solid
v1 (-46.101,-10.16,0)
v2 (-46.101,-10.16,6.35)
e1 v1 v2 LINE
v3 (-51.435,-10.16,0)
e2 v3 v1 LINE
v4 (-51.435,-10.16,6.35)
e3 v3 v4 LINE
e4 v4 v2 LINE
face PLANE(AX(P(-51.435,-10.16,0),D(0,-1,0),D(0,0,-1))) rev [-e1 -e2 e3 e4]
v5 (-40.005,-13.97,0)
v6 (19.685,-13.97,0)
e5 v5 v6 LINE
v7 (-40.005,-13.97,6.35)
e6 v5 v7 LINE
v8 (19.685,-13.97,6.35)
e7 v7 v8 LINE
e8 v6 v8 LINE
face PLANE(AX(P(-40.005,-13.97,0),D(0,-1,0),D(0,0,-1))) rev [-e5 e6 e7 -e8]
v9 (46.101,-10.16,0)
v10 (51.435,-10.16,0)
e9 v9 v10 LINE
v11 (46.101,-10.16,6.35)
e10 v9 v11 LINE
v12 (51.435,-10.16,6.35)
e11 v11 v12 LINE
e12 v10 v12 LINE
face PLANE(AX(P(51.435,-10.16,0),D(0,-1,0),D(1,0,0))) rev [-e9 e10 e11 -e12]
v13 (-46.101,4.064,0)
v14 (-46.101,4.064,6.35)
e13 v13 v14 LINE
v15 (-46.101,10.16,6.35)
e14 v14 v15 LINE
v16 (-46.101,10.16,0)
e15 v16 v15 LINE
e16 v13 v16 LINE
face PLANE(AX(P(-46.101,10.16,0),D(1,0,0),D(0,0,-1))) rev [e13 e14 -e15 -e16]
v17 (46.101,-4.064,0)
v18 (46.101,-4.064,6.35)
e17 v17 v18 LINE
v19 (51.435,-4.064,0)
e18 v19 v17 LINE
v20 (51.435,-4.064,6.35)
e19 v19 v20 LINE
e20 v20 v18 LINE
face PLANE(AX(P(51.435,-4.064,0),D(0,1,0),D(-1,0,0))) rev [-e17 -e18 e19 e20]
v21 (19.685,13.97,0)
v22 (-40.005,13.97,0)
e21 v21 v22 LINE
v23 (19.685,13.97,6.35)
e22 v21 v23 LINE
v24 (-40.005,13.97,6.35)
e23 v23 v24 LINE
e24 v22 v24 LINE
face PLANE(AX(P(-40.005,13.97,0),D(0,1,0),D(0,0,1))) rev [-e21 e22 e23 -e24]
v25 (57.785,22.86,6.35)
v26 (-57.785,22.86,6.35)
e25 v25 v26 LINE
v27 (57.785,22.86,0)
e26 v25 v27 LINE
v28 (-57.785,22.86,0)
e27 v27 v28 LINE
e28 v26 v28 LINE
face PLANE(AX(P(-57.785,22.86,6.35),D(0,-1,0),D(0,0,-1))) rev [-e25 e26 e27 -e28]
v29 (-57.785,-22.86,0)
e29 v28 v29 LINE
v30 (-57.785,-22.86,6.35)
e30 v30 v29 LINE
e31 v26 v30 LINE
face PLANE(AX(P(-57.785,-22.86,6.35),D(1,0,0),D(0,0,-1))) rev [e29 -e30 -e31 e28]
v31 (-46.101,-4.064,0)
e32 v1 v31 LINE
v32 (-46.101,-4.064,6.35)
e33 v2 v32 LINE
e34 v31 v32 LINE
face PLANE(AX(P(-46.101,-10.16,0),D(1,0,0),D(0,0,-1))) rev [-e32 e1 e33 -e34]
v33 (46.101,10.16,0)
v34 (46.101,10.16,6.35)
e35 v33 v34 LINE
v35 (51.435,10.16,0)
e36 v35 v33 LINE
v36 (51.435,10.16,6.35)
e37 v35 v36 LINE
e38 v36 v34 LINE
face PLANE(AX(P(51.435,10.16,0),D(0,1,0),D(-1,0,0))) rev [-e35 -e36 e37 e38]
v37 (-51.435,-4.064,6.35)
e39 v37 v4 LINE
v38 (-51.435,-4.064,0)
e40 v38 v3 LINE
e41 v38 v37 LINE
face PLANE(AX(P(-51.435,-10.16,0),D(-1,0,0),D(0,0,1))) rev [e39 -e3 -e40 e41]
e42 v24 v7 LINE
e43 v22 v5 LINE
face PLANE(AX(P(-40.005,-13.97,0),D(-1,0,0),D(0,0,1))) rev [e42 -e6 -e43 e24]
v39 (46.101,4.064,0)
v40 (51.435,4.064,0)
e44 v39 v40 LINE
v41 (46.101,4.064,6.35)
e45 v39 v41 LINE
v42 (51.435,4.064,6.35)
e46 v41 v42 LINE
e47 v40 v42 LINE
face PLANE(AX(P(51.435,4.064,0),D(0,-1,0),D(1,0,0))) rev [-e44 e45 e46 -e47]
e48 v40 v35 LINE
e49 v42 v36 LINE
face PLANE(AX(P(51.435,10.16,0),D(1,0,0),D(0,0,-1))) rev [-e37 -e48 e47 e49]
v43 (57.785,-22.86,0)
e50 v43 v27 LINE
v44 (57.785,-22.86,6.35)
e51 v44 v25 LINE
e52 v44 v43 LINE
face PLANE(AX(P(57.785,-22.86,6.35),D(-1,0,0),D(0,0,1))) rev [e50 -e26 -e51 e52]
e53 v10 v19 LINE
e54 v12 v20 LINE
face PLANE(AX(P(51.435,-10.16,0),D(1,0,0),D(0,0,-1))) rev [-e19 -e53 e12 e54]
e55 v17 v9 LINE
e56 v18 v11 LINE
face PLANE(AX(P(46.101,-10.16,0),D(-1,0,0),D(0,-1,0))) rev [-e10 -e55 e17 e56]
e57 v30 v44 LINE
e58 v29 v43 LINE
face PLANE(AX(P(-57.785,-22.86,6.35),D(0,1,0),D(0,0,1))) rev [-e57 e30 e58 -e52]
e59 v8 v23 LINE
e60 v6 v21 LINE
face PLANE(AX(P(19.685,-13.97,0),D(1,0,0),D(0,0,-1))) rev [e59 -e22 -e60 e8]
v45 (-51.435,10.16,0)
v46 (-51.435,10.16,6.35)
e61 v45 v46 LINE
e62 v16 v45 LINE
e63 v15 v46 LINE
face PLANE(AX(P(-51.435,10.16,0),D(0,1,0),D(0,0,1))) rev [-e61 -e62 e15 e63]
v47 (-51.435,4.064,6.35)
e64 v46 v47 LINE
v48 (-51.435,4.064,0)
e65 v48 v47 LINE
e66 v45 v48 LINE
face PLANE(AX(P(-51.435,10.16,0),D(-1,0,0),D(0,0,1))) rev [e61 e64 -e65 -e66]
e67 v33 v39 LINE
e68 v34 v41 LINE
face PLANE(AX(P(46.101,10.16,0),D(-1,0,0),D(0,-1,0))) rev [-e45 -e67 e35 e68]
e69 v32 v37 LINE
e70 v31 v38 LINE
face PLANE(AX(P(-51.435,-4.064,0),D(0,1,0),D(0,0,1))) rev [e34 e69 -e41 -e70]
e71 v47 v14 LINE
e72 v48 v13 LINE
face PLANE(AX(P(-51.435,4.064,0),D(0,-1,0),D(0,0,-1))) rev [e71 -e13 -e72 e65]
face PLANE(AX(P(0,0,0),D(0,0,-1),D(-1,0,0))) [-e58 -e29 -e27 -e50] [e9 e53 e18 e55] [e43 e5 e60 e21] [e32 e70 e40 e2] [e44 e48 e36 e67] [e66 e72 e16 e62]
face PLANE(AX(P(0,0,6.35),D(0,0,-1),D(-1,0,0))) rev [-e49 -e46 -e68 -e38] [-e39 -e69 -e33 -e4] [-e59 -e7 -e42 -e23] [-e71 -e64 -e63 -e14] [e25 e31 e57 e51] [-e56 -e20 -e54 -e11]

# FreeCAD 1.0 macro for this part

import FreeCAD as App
import Part
import Sketcher
from FreeCAD import Vector
Q = App.Units.Quantity

doc = App.newDocument("Part")
params = doc.addObject("Spreadsheet::Sheet", "Params")
for row, (alias, value) in enumerate([
    ("sketch1_height", "1.8 in"),
    ("sketch1_width", "4.55 in"),
    ("pad1_length", "0.25 in"),
    ("sketch2_height", "1.1 in"),
    ("sketch2_width", "2.35 in"),
    ("sketch3_width", "0.21 in"),
    ("sketch3_height", "0.24 in"),
], start=1):
    params.set(f"A{row}", alias)
    params.set(f"B{row}", "=" + value)
    params.setAlias(f"B{row}", alias)

body = doc.addObject("PartDesign::Body", "Body")

# Sketch on XY plane
sketch1 = doc.addObject("Sketcher::SketchObject", "Sketch")
body.addObject(sketch1)
sketch1.AttachmentSupport = (doc.XY_Plane, [""])
sketch1.MapMode = "FlatFace"
sketch1.addGeometry([
    Part.LineSegment(Vector(-58, 23, 0), Vector(-58, -23, 0)),
    Part.LineSegment(Vector(-58, -23, 0), Vector(58, -23, 0)),
    Part.LineSegment(Vector(58, -23, 0), Vector(58, 23, 0)),
    Part.LineSegment(Vector(58, 23, 0), Vector(-58, 23, 0)),
], False)
sketch1.addConstraint([
    Sketcher.Constraint("Coincident", 0, 2, 1, 1),
    Sketcher.Constraint("Coincident", 1, 2, 2, 1),
    Sketcher.Constraint("Coincident", 2, 2, 3, 1),
    Sketcher.Constraint("Coincident", 3, 2, 0, 1),
    Sketcher.Constraint("Vertical", 0),
    Sketcher.Constraint("Horizontal", 1),
    Sketcher.Constraint("Vertical", 2),
    Sketcher.Constraint("Horizontal", 3),
    Sketcher.Constraint("Symmetric", 0, 2, 2, 2, -1, 1),
    Sketcher.Constraint("DistanceY", 0, 2, 0, 1, Q("1.8 in")),
    Sketcher.Constraint("DistanceX", 1, 1, 1, 2, Q("4.55 in")),
])
sketch1.setExpression("Constraints[9]", "Params.sketch1_height")
sketch1.setExpression("Constraints[10]", "Params.sketch1_width")
pad1 = doc.addObject("PartDesign::Pad", "Pad")
body.addObject(pad1)
pad1.Profile = sketch1
pad1.setExpression("Length", "Params.pad1_length")

# Sketch on XY plane
sketch2 = doc.addObject("Sketcher::SketchObject", "Sketch001")
body.addObject(sketch2)
sketch2.AttachmentSupport = (doc.XY_Plane, [""])
sketch2.MapMode = "FlatFace"
sketch2.AttachmentOffset = App.Placement(Vector(0, 0, 0.25 * 25.4), App.Rotation())
sketch2.addGeometry([
    Part.LineSegment(Vector(-40, 14, 0), Vector(-40, -14, 0)),
    Part.LineSegment(Vector(-40, -14, 0), Vector(20, -14, 0)),
    Part.LineSegment(Vector(20, -14, 0), Vector(20, 14, 0)),
    Part.LineSegment(Vector(20, 14, 0), Vector(-40, 14, 0)),
], False)
sketch2.addConstraint([
    Sketcher.Constraint("Coincident", 0, 2, 1, 1),
    Sketcher.Constraint("Coincident", 1, 2, 2, 1),
    Sketcher.Constraint("Coincident", 2, 2, 3, 1),
    Sketcher.Constraint("Coincident", 3, 2, 0, 1),
    Sketcher.Constraint("Vertical", 0),
    Sketcher.Constraint("Horizontal", 1),
    Sketcher.Constraint("Vertical", 2),
    Sketcher.Constraint("Horizontal", 3),
    Sketcher.Constraint("DistanceY", 0, 2, 0, 1, Q("1.1 in")),
    Sketcher.Constraint("DistanceX", 1, 1, 1, 2, Q("2.35 in")),
    Sketcher.Constraint("DistanceY", 0, 2, -1, 1, Q("0.55 in")),
    Sketcher.Constraint("DistanceX", 0, 2, -1, 1, Q("1.575 in")),
])
sketch2.setExpression("Constraints[8]", "Params.sketch2_height")
sketch2.setExpression("Constraints[9]", "Params.sketch2_width")
pocket1 = doc.addObject("PartDesign::Pocket", "Pocket")
body.addObject(pocket1)
pocket1.Profile = sketch2
pocket1.Type = "ThroughAll"

# Sketch on XY plane
sketch3 = doc.addObject("Sketcher::SketchObject", "Sketch002")
body.addObject(sketch3)
sketch3.AttachmentSupport = (doc.XY_Plane, [""])
sketch3.MapMode = "FlatFace"
sketch3.AttachmentOffset = App.Placement(Vector(0, 0, 0.25 * 25.4), App.Rotation())
sketch3.addGeometry([
    Part.LineSegment(Vector(-51, 10, 0), Vector(-51, 4, 0)),  # 0
    Part.LineSegment(Vector(-51, 4, 0), Vector(-46, 4, 0)),  # 1
    Part.LineSegment(Vector(-46, 4, 0), Vector(-46, 10, 0)),  # 2
    Part.LineSegment(Vector(-46, 10, 0), Vector(-51, 10, 0)),  # 3
    Part.LineSegment(Vector(-51, -4, 0), Vector(-51, -10, 0)),  # 4
    Part.LineSegment(Vector(-51, -10, 0), Vector(-46, -10, 0)),  # 5
    Part.LineSegment(Vector(-46, -10, 0), Vector(-46, -4, 0)),  # 6
    Part.LineSegment(Vector(-46, -4, 0), Vector(-51, -4, 0)),  # 7
    Part.LineSegment(Vector(46, -4, 0), Vector(46, -10, 0)),  # 8
    Part.LineSegment(Vector(46, -10, 0), Vector(51, -10, 0)),  # 9
    Part.LineSegment(Vector(51, -10, 0), Vector(51, -4, 0)),  # 10
    Part.LineSegment(Vector(51, -4, 0), Vector(46, -4, 0)),  # 11
    Part.LineSegment(Vector(46, 10, 0), Vector(46, 4, 0)),  # 12
    Part.LineSegment(Vector(46, 4, 0), Vector(51, 4, 0)),  # 13
    Part.LineSegment(Vector(51, 4, 0), Vector(51, 10, 0)),  # 14
    Part.LineSegment(Vector(51, 10, 0), Vector(46, 10, 0)),  # 15
], False)
sketch3.addConstraint([
    Sketcher.Constraint("Coincident", 0, 2, 1, 1),
    Sketcher.Constraint("Coincident", 1, 2, 2, 1),
    Sketcher.Constraint("Coincident", 2, 2, 3, 1),
    Sketcher.Constraint("Coincident", 3, 2, 0, 1),
    Sketcher.Constraint("Coincident", 4, 2, 5, 1),
    Sketcher.Constraint("Coincident", 5, 2, 6, 1),
    Sketcher.Constraint("Coincident", 6, 2, 7, 1),
    Sketcher.Constraint("Coincident", 7, 2, 4, 1),
    Sketcher.Constraint("Coincident", 8, 2, 9, 1),
    Sketcher.Constraint("Coincident", 9, 2, 10, 1),
    Sketcher.Constraint("Coincident", 10, 2, 11, 1),
    Sketcher.Constraint("Coincident", 11, 2, 8, 1),
    Sketcher.Constraint("Coincident", 12, 2, 13, 1),
    Sketcher.Constraint("Coincident", 13, 2, 14, 1),
    Sketcher.Constraint("Coincident", 14, 2, 15, 1),
    Sketcher.Constraint("Coincident", 15, 2, 12, 1),
    Sketcher.Constraint("Vertical", 0),
    Sketcher.Constraint("Horizontal", 1),
    Sketcher.Constraint("Vertical", 2),
    Sketcher.Constraint("Horizontal", 3),
    Sketcher.Constraint("Vertical", 4),
    Sketcher.Constraint("Horizontal", 5),
    Sketcher.Constraint("Vertical", 6),
    Sketcher.Constraint("Horizontal", 7),
    Sketcher.Constraint("Vertical", 8),
    Sketcher.Constraint("Horizontal", 9),
    Sketcher.Constraint("Vertical", 10),
    Sketcher.Constraint("Horizontal", 11),
    Sketcher.Constraint("Vertical", 12),
    Sketcher.Constraint("Horizontal", 13),
    Sketcher.Constraint("Vertical", 14),
    Sketcher.Constraint("Horizontal", 15),
    Sketcher.Constraint("Symmetric", 2, 2, 8, 2, -1, 1),
    Sketcher.Constraint("Symmetric", 0, 2, 10, 2, -1, 1),
    Sketcher.Constraint("Symmetric", 6, 2, 12, 2, -1, 1),
    Sketcher.Constraint("Symmetric", 4, 2, 14, 2, -1, 1),
    Sketcher.Constraint("Symmetric", 5, 2, 8, 2, -2),
    Sketcher.Constraint("Symmetric", 7, 2, 10, 2, -2),
    Sketcher.Constraint("DistanceX", 1, 1, 1, 2, Q("0.21 in")),
    Sketcher.Constraint("DistanceY", 0, 2, 0, 1, Q("0.24 in")),
    Sketcher.Constraint("DistanceY", -1, 1, 2, 2, Q("0.4 in")),
    Sketcher.Constraint("DistanceX", 5, 2, 8, 2, Q("3.63 in")),
])
sketch3.setExpression("Constraints[38]", "Params.sketch3_width")
sketch3.setExpression("Constraints[39]", "Params.sketch3_height")
pocket2 = doc.addObject("PartDesign::Pocket", "Pocket001")
body.addObject(pocket2)
pocket2.Profile = sketch3
pocket2.Type = "ThroughAll"

doc.recompute()
